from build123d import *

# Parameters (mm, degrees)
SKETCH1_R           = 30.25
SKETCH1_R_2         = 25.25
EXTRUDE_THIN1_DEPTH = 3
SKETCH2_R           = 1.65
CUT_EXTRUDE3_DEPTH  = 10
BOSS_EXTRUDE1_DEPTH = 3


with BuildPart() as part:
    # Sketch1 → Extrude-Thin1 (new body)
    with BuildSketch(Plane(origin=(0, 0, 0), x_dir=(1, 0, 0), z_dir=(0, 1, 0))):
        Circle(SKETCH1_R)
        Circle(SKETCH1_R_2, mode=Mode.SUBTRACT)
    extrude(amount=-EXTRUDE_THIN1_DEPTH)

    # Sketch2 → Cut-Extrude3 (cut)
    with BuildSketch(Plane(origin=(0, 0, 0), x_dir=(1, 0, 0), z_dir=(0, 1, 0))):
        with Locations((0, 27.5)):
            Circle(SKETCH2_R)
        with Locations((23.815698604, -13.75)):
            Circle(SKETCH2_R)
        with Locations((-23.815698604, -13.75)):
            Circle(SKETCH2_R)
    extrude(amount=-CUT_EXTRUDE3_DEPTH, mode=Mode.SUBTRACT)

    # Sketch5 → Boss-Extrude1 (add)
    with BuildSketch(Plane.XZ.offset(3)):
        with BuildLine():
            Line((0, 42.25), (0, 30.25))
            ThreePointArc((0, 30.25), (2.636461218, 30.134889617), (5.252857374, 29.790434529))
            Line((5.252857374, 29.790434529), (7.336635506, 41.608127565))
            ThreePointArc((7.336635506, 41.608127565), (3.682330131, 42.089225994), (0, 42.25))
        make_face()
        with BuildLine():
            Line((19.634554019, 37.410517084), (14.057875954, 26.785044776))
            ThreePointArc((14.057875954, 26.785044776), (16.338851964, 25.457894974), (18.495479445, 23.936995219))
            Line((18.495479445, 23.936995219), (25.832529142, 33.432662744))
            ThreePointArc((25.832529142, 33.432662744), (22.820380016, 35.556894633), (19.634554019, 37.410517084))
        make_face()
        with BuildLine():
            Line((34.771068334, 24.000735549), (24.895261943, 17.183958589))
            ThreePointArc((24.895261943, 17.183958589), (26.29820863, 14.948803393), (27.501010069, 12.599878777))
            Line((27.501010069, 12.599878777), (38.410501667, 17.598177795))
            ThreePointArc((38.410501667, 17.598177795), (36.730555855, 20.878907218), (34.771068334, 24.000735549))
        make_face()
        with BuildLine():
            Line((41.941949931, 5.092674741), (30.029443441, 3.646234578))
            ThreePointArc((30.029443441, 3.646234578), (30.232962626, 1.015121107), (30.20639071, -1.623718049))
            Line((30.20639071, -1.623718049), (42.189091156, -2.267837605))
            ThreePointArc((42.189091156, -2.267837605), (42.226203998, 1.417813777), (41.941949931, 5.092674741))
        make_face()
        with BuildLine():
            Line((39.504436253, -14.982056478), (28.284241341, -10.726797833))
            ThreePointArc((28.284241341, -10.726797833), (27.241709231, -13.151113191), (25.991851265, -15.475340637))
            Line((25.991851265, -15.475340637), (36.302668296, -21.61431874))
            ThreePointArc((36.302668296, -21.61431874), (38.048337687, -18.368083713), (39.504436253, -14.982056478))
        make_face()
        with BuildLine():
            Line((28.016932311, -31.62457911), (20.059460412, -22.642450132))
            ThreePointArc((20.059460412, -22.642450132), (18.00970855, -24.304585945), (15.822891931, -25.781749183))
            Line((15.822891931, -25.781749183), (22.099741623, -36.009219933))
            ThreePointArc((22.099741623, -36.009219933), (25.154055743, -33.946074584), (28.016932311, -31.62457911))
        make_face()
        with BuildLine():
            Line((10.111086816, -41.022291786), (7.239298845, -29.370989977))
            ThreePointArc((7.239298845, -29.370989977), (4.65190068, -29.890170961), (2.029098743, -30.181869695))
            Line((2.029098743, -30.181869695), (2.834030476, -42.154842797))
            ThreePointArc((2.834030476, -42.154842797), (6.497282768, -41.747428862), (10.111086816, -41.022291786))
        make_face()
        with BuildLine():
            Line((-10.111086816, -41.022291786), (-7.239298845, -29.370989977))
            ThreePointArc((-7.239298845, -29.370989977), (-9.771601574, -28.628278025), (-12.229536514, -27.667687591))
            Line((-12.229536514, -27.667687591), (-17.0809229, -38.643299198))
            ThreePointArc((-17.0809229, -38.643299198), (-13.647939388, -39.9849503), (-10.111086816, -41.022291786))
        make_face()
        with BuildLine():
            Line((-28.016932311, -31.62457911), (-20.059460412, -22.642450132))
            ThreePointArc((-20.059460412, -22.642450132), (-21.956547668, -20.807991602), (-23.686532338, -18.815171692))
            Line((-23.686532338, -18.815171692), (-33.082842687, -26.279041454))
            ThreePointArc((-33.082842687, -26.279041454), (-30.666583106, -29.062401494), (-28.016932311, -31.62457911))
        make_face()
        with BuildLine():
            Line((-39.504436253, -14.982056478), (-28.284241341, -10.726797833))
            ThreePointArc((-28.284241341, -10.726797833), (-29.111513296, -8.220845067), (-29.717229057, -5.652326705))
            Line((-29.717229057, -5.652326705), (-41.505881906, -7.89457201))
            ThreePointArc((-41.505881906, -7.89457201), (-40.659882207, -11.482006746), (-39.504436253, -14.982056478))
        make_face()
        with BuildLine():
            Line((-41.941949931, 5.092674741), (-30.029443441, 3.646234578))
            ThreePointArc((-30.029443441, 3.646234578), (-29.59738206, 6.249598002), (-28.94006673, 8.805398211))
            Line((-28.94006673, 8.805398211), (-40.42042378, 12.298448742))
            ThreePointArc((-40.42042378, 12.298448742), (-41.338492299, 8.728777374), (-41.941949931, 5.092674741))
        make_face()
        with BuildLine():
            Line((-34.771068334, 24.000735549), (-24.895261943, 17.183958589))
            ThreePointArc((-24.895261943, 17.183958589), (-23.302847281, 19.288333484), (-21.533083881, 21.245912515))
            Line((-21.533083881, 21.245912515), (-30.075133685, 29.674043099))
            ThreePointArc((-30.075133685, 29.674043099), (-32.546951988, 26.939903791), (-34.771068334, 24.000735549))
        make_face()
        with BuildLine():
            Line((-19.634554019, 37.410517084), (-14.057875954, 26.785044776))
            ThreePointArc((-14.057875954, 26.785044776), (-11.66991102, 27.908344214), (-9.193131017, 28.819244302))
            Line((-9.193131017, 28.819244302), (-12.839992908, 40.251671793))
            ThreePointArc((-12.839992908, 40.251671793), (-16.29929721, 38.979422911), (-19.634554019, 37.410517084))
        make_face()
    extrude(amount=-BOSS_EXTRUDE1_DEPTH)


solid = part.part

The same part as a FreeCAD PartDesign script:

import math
import FreeCAD as App
import Part
import Sketcher

V = App.Vector
Q = App.Units.Quantity

doc = App.newDocument("Part")
params = doc.addObject("Spreadsheet::Sheet", "Params")
for row, (alias, value) in enumerate([
    ("sketch1_diameter", "60.5 mm"),
    ("sketch1_diameter2", "50.5 mm"),
    ("pad1_length", "3 mm"),
    ("sketch2_diameter", "3.3 mm"),
    ("pocket1_length", "10 mm"),
    ("sketch3_height", "12 mm"),
    ("sketch3_radius", "30.25 mm"),
    ("pad2_length", "3 mm"),
], start=1):
    params.set(f"A{row}", alias)
    params.set(f"B{row}", "=" + value)
    params.setAlias(f"B{row}", alias)

body = doc.addObject("PartDesign::Body", "Body")

# Sketch on XZ plane
sketch1 = body.newObject("Sketcher::SketchObject", "Sketch")
sketch1.AttachmentSupport = (doc.getObject("XZ_Plane"), [""])
sketch1.MapMode = "FlatFace"
sketch1.addGeometry(Part.Circle(V(0, 0, 0), V(0, 0, 1), 30), False)
sketch1.addGeometry(Part.Circle(V(0, 0, 0), V(0, 0, 1), 25), False)
sketch1.addConstraint(Sketcher.Constraint("Coincident", 0, 3, -1, 1))
sketch1.addConstraint(Sketcher.Constraint("Coincident", 1, 3, -1, 1))
sketch1.addConstraint(Sketcher.Constraint("Diameter", 0, 60.5))
sketch1.addConstraint(Sketcher.Constraint("Diameter", 1, 50.5))
sketch1.setExpression("Constraints[2]", "Params.sketch1_diameter")
sketch1.setExpression("Constraints[3]", "Params.sketch1_diameter2")
pad1 = body.newObject("PartDesign::Pad", "Pad")
pad1.Profile = sketch1
pad1.setExpression("Length", "Params.pad1_length")

# Sketch on XZ plane
sketch2 = body.newObject("Sketcher::SketchObject", "Sketch001")
sketch2.AttachmentSupport = (doc.getObject("XZ_Plane"), [""])
sketch2.MapMode = "FlatFace"
sketch2.addGeometry(Part.Circle(V(0, -27.5, 0), V(0, 0, 1), 1.6), False)
sketch2.addGeometry(Part.Circle(V(23.8, 13.8, 0), V(0, 0, 1), 1.6), False)
sketch2.addGeometry(Part.Circle(V(-23.8, 13.8, 0), V(0, 0, 1), 1.6), False)
sketch2.addConstraint(Sketcher.Constraint("Equal", 0, 1))
sketch2.addConstraint(Sketcher.Constraint("Equal", 1, 2))
sketch2.addConstraint(Sketcher.Constraint("Symmetric", 1, 3, 2, 3, -2))
sketch2.addConstraint(Sketcher.Constraint("PointOnObject", 0, 3, -2))
sketch2.addConstraint(Sketcher.Constraint("Diameter", 0, 3.3))
sketch2.addConstraint(Sketcher.Constraint("DistanceY", 0, 3, -1, 1, 27.5))
sketch2.addConstraint(Sketcher.Constraint("DistanceY", -1, 1, 1, 3, 13.75))
sketch2.addConstraint(Sketcher.Constraint("DistanceX", -1, 1, 1, 3, 23.815699))
sketch2.setExpression("Constraints[4]", "Params.sketch2_diameter")
pocket1 = body.newObject("PartDesign::Pocket", "Pocket")
pocket1.Profile = sketch2
pocket1.setExpression("Length", "Params.pocket1_length")
pocket1.Reversed = True

# Sketch on XZ plane
sketch3 = body.newObject("Sketcher::SketchObject", "Sketch002")
sketch3.AttachmentSupport = (doc.getObject("XZ_Plane"), [""])
sketch3.MapMode = "FlatFace"
sketch3.AttachmentOffset = App.Placement(V(0, 0, 3), App.Rotation())
sketch3.addGeometry(Part.LineSegment(V(0, 42, 0), V(0, 30, 0)), False)
sketch3.addGeometry(Part.ArcOfCircle(Part.Circle(V(0, 0, 0), V(0, 0, 1), 30), math.radians(80), math.radians(90)), False)
sketch3.addGeometry(Part.LineSegment(V(5, 30, 0), V(7, 42, 0)), False)
sketch3.addGeometry(Part.ArcOfCircle(Part.Circle(V(0, 0, 0), V(0, 0, 1), 42), math.radians(80), math.radians(90)), False)
sketch3.addGeometry(Part.LineSegment(V(20, 37, 0), V(14, 27, 0)), False)
sketch3.addGeometry(Part.ArcOfCircle(Part.Circle(V(0, 0, 0), V(0, 0, 1), 30), math.radians(52.31), math.radians(62.31)), False)
sketch3.addGeometry(Part.LineSegment(V(18, 24, 0), V(26, 33, 0)), False)
sketch3.addGeometry(Part.ArcOfCircle(Part.Circle(V(0, 0, 0), V(0, 0, 1), 42), math.radians(52.31), math.radians(62.31)), False)
sketch3.addGeometry(Part.LineSegment(V(35, 24, 0), V(25, 17, 0)), False)
sketch3.addGeometry(Part.ArcOfCircle(Part.Circle(V(0, 0, 0), V(0, 0, 1), 30), math.radians(24.62), math.radians(34.62)), False)
sketch3.addGeometry(Part.LineSegment(V(28, 13, 0), V(38, 18, 0)), False)
sketch3.addGeometry(Part.ArcOfCircle(Part.Circle(V(0, 0, 0), V(0, 0, 1), 42), math.radians(24.62), math.radians(34.62)), False)
sketch3.addGeometry(Part.LineSegment(V(42, 5, 0), V(30, 4, 0)), False)
sketch3.addGeometry(Part.ArcOfCircle(Part.Circle(V(0, 0, 0), V(0, 0, 1), 30), math.radians(-3.08), math.radians(6.92)), False)
sketch3.addGeometry(Part.LineSegment(V(30, -2, 0), V(42, -2, 0)), False)
sketch3.addGeometry(Part.ArcOfCircle(Part.Circle(V(0, 0, 0), V(0, 0, 1), 42), math.radians(-3.08), math.radians(6.92)), False)
sketch3.addGeometry(Part.LineSegment(V(40, -15, 0), V(28, -11, 0)), False)
sketch3.addGeometry(Part.ArcOfCircle(Part.Circle(V(0, 0, 0), V(0, 0, 1), 30), math.radians(-30.77), math.radians(-20.77)), False)
sketch3.addGeometry(Part.LineSegment(V(26, -15, 0), V(36, -22, 0)), False)
sketch3.addGeometry(Part.ArcOfCircle(Part.Circle(V(0, 0, 0), V(0, 0, 1), 42), math.radians(-30.77), math.radians(-20.77)), False)
sketch3.addGeometry(Part.LineSegment(V(28, -32, 0), V(20, -23, 0)), False)
sketch3.addGeometry(Part.ArcOfCircle(Part.Circle(V(0, 0, 0), V(0, 0, 1), 30), math.radians(-58.46), math.radians(-48.46)), False)
sketch3.addGeometry(Part.LineSegment(V(16, -26, 0), V(22, -36, 0)), False)
sketch3.addGeometry(Part.ArcOfCircle(Part.Circle(V(0, 0, 0), V(0, 0, 1), 42), math.radians(-58.46), math.radians(-48.46)), False)
sketch3.addGeometry(Part.LineSegment(V(10, -41, 0), V(7, -29, 0)), False)
sketch3.addGeometry(Part.ArcOfCircle(Part.Circle(V(0, 0, 0), V(0, 0, 1), 30), math.radians(-86.15), math.radians(-76.15)), False)
sketch3.addGeometry(Part.LineSegment(V(2, -30, 0), V(3, -42, 0)), False)
sketch3.addGeometry(Part.ArcOfCircle(Part.Circle(V(0, 0, 0), V(0, 0, 1), 42), math.radians(-86.15), math.radians(-76.15)), False)
sketch3.addGeometry(Part.LineSegment(V(-10, -41, 0), V(-7, -29, 0)), False)
sketch3.addGeometry(Part.ArcOfCircle(Part.Circle(V(0, 0, 0), V(0, 0, 1), 30), math.radians(-113.85), math.radians(-103.85)), False)
sketch3.addGeometry(Part.LineSegment(V(-12, -28, 0), V(-17, -39, 0)), False)
sketch3.addGeometry(Part.ArcOfCircle(Part.Circle(V(0, 0, 0), V(0, 0, 1), 42), math.radians(-113.85), math.radians(-103.85)), False)
sketch3.addGeometry(Part.LineSegment(V(-28, -32, 0), V(-20, -23, 0)), False)
sketch3.addGeometry(Part.ArcOfCircle(Part.Circle(V(0, 0, 0), V(0, 0, 1), 30), math.radians(-141.54), math.radians(-131.54)), False)
sketch3.addGeometry(Part.LineSegment(V(-24, -19, 0), V(-33, -26, 0)), False)
sketch3.addGeometry(Part.ArcOfCircle(Part.Circle(V(0, 0, 0), V(0, 0, 1), 42), math.radians(-141.54), math.radians(-131.54)), False)
sketch3.addGeometry(Part.LineSegment(V(-40, -15, 0), V(-28, -11, 0)), False)
sketch3.addGeometry(Part.ArcOfCircle(Part.Circle(V(0, 0, 0), V(0, 0, 1), 30), math.radians(-169.23), math.radians(-159.23)), False)
sketch3.addGeometry(Part.LineSegment(V(-30, -6, 0), V(-42, -8, 0)), False)
sketch3.addGeometry(Part.ArcOfCircle(Part.Circle(V(0, 0, 0), V(0, 0, 1), 42), math.radians(-169.23), math.radians(-159.23)), False)
sketch3.addGeometry(Part.LineSegment(V(-42, 5, 0), V(-30, 4, 0)), False)
sketch3.addGeometry(Part.ArcOfCircle(Part.Circle(V(0, 0, 0), V(0, 0, 1), 30), math.radians(163.08), math.radians(173.08)), False)
sketch3.addGeometry(Part.LineSegment(V(-29, 9, 0), V(-40, 12, 0)), False)
sketch3.addGeometry(Part.ArcOfCircle(Part.Circle(V(0, 0, 0), V(0, 0, 1), 42), math.radians(163.08), math.radians(173.08)), False)
sketch3.addGeometry(Part.LineSegment(V(-35, 24, 0), V(-25, 17, 0)), False)
sketch3.addGeometry(Part.ArcOfCircle(Part.Circle(V(0, 0, 0), V(0, 0, 1), 30), math.radians(135.38), math.radians(145.38)), False)
sketch3.addGeometry(Part.LineSegment(V(-22, 21, 0), V(-30, 30, 0)), False)
sketch3.addGeometry(Part.ArcOfCircle(Part.Circle(V(0, 0, 0), V(0, 0, 1), 42), math.radians(135.38), math.radians(145.38)), False)
sketch3.addGeometry(Part.LineSegment(V(-20, 37, 0), V(-14, 27, 0)), False)
sketch3.addGeometry(Part.ArcOfCircle(Part.Circle(V(0, 0, 0), V(0, 0, 1), 30), math.radians(107.69), math.radians(117.69)), False)
sketch3.addGeometry(Part.LineSegment(V(-9, 29, 0), V(-13, 40, 0)), False)
sketch3.addGeometry(Part.ArcOfCircle(Part.Circle(V(0, 0, 0), V(0, 0, 1), 42), math.radians(107.69), math.radians(117.69)), False)
sketch3.addConstraint(Sketcher.Constraint("Coincident", 0, 2, 1, 2))
sketch3.addConstraint(Sketcher.Constraint("Coincident", 1, 1, 2, 1))
sketch3.addConstraint(Sketcher.Constraint("Coincident", 2, 2, 3, 1))
sketch3.addConstraint(Sketcher.Constraint("Coincident", 3, 2, 0, 1))
sketch3.addConstraint(Sketcher.Constraint("Coincident", 4, 2, 5, 2))
sketch3.addConstraint(Sketcher.Constraint("Coincident", 5, 1, 6, 1))
sketch3.addConstraint(Sketcher.Constraint("Coincident", 6, 2, 7, 1))
sketch3.addConstraint(Sketcher.Constraint("Coincident", 7, 2, 4, 1))
sketch3.addConstraint(Sketcher.Constraint("Coincident", 8, 2, 9, 2))
sketch3.addConstraint(Sketcher.Constraint("Coincident", 9, 1, 10, 1))
sketch3.addConstraint(Sketcher.Constraint("Coincident", 10, 2, 11, 1))
sketch3.addConstraint(Sketcher.Constraint("Coincident", 11, 2, 8, 1))
sketch3.addConstraint(Sketcher.Constraint("Coincident", 12, 2, 13, 2))
sketch3.addConstraint(Sketcher.Constraint("Coincident", 13, 1, 14, 1))
sketch3.addConstraint(Sketcher.Constraint("Coincident", 14, 2, 15, 1))
sketch3.addConstraint(Sketcher.Constraint("Coincident", 15, 2, 12, 1))
sketch3.addConstraint(Sketcher.Constraint("Coincident", 16, 2, 17, 2))
sketch3.addConstraint(Sketcher.Constraint("Coincident", 17, 1, 18, 1))
sketch3.addConstraint(Sketcher.Constraint("Coincident", 18, 2, 19, 1))
sketch3.addConstraint(Sketcher.Constraint("Coincident", 19, 2, 16, 1))
sketch3.addConstraint(Sketcher.Constraint("Coincident", 20, 2, 21, 2))
sketch3.addConstraint(Sketcher.Constraint("Coincident", 21, 1, 22, 1))
sketch3.addConstraint(Sketcher.Constraint("Coincident", 22, 2, 23, 1))
sketch3.addConstraint(Sketcher.Constraint("Coincident", 23, 2, 20, 1))
sketch3.addConstraint(Sketcher.Constraint("Coincident", 24, 2, 25, 2))
sketch3.addConstraint(Sketcher.Constraint("Coincident", 25, 1, 26, 1))
sketch3.addConstraint(Sketcher.Constraint("Coincident", 26, 2, 27, 1))
sketch3.addConstraint(Sketcher.Constraint("Coincident", 27, 2, 24, 1))
sketch3.addConstraint(Sketcher.Constraint("Coincident", 28, 2, 29, 2))
sketch3.addConstraint(Sketcher.Constraint("Coincident", 29, 1, 30, 1))
sketch3.addConstraint(Sketcher.Constraint("Coincident", 30, 2, 31, 1))
sketch3.addConstraint(Sketcher.Constraint("Coincident", 31, 2, 28, 1))
sketch3.addConstraint(Sketcher.Constraint("Coincident", 32, 2, 33, 2))
sketch3.addConstraint(Sketcher.Constraint("Coincident", 33, 1, 34, 1))
sketch3.addConstraint(Sketcher.Constraint("Coincident", 34, 2, 35, 1))
sketch3.addConstraint(Sketcher.Constraint("Coincident", 35, 2, 32, 1))
sketch3.addConstraint(Sketcher.Constraint("Coincident", 36, 2, 37, 2))
sketch3.addConstraint(Sketcher.Constraint("Coincident", 37, 1, 38, 1))
sketch3.addConstraint(Sketcher.Constraint("Coincident", 38, 2, 39, 1))
sketch3.addConstraint(Sketcher.Constraint("Coincident", 39, 2, 36, 1))
sketch3.addConstraint(Sketcher.Constraint("Coincident", 40, 2, 41, 2))
sketch3.addConstraint(Sketcher.Constraint("Coincident", 41, 1, 42, 1))
sketch3.addConstraint(Sketcher.Constraint("Coincident", 42, 2, 43, 1))
sketch3.addConstraint(Sketcher.Constraint("Coincident", 43, 2, 40, 1))
sketch3.addConstraint(Sketcher.Constraint("Coincident", 44, 2, 45, 2))
sketch3.addConstraint(Sketcher.Constraint("Coincident", 45, 1, 46, 1))
sketch3.addConstraint(Sketcher.Constraint("Coincident", 46, 2, 47, 1))
sketch3.addConstraint(Sketcher.Constraint("Coincident", 47, 2, 44, 1))
sketch3.addConstraint(Sketcher.Constraint("Coincident", 48, 2, 49, 2))
sketch3.addConstraint(Sketcher.Constraint("Coincident", 49, 1, 50, 1))
sketch3.addConstraint(Sketcher.Constraint("Coincident", 50, 2, 51, 1))
sketch3.addConstraint(Sketcher.Constraint("Coincident", 51, 2, 48, 1))
sketch3.addConstraint(Sketcher.Constraint("Vertical", 0))
sketch3.addConstraint(Sketcher.Constraint("Coincident", 1, 3, -1, 1))
sketch3.addConstraint(Sketcher.Constraint("Coincident", 3, 3, -1, 1))
sketch3.addConstraint(Sketcher.Constraint("Coincident", 5, 3, -1, 1))
sketch3.addConstraint(Sketcher.Constraint("Coincident", 7, 3, -1, 1))
sketch3.addConstraint(Sketcher.Constraint("Coincident", 9, 3, -1, 1))
sketch3.addConstraint(Sketcher.Constraint("Coincident", 11, 3, -1, 1))
sketch3.addConstraint(Sketcher.Constraint("Coincident", 13, 3, -1, 1))
sketch3.addConstraint(Sketcher.Constraint("Coincident", 15, 3, -1, 1))
sketch3.addConstraint(Sketcher.Constraint("Coincident", 17, 3, -1, 1))
sketch3.addConstraint(Sketcher.Constraint("Coincident", 19, 3, -1, 1))
sketch3.addConstraint(Sketcher.Constraint("Coincident", 21, 3, -1, 1))
sketch3.addConstraint(Sketcher.Constraint("Coincident", 23, 3, -1, 1))
sketch3.addConstraint(Sketcher.Constraint("Coincident", 25, 3, -1, 1))
sketch3.addConstraint(Sketcher.Constraint("Coincident", 27, 3, -1, 1))
sketch3.addConstraint(Sketcher.Constraint("Coincident", 29, 3, -1, 1))
sketch3.addConstraint(Sketcher.Constraint("Coincident", 31, 3, -1, 1))
sketch3.addConstraint(Sketcher.Constraint("Coincident", 33, 3, -1, 1))
sketch3.addConstraint(Sketcher.Constraint("Coincident", 35, 3, -1, 1))
sketch3.addConstraint(Sketcher.Constraint("Coincident", 37, 3, -1, 1))
sketch3.addConstraint(Sketcher.Constraint("Coincident", 39, 3, -1, 1))
sketch3.addConstraint(Sketcher.Constraint("Coincident", 41, 3, -1, 1))
sketch3.addConstraint(Sketcher.Constraint("Coincident", 43, 3, -1, 1))
sketch3.addConstraint(Sketcher.Constraint("Coincident", 45, 3, -1, 1))
sketch3.addConstraint(Sketcher.Constraint("Coincident", 47, 3, -1, 1))
sketch3.addConstraint(Sketcher.Constraint("Coincident", 49, 3, -1, 1))
sketch3.addConstraint(Sketcher.Constraint("Coincident", 51, 3, -1, 1))
sketch3.addConstraint(Sketcher.Constraint("Equal", 1, 5))
sketch3.addConstraint(Sketcher.Constraint("Equal", 3, 7))
sketch3.addConstraint(Sketcher.Constraint("Equal", 5, 9))
sketch3.addConstraint(Sketcher.Constraint("Equal", 7, 11))
sketch3.addConstraint(Sketcher.Constraint("Equal", 9, 13))
sketch3.addConstraint(Sketcher.Constraint("Equal", 11, 15))
sketch3.addConstraint(Sketcher.Constraint("Equal", 13, 17))
sketch3.addConstraint(Sketcher.Constraint("Equal", 15, 19))
sketch3.addConstraint(Sketcher.Constraint("Equal", 17, 21))
sketch3.addConstraint(Sketcher.Constraint("Equal", 19, 23))
sketch3.addConstraint(Sketcher.Constraint("Equal", 21, 25))
sketch3.addConstraint(Sketcher.Constraint("Equal", 23, 27))
sketch3.addConstraint(Sketcher.Constraint("Equal", 25, 29))
sketch3.addConstraint(Sketcher.Constraint("Equal", 27, 31))
sketch3.addConstraint(Sketcher.Constraint("Equal", 29, 33))
sketch3.addConstraint(Sketcher.Constraint("Equal", 31, 35))
sketch3.addConstraint(Sketcher.Constraint("Equal", 33, 37))
sketch3.addConstraint(Sketcher.Constraint("Equal", 35, 39))
sketch3.addConstraint(Sketcher.Constraint("Equal", 37, 41))
sketch3.addConstraint(Sketcher.Constraint("Equal", 39, 43))
sketch3.addConstraint(Sketcher.Constraint("Equal", 41, 45))
sketch3.addConstraint(Sketcher.Constraint("Equal", 43, 47))
sketch3.addConstraint(Sketcher.Constraint("Equal", 45, 49))
sketch3.addConstraint(Sketcher.Constraint("Equal", 47, 51))
sketch3.addConstraint(Sketcher.Constraint("PointOnObject", 0, 2, -2))
sketch3.addConstraint(Sketcher.Constraint("Horizontal", 24, 2, 28, 2))
sketch3.addConstraint(Sketcher.Constraint("Horizontal", 27, 2, 31, 2))
sketch3.addConstraint(Sketcher.Constraint("Horizontal", 20, 2, 32, 2))
sketch3.addConstraint(Sketcher.Constraint("Horizontal", 23, 2, 35, 2))
sketch3.addConstraint(Sketcher.Constraint("Horizontal", 16, 2, 36, 2))
sketch3.addConstraint(Sketcher.Constraint("Horizontal", 19, 2, 39, 2))
sketch3.addConstraint(Sketcher.Constraint("Horizontal", 12, 2, 40, 2))
sketch3.addConstraint(Sketcher.Constraint("Horizontal", 15, 2, 43, 2))
sketch3.addConstraint(Sketcher.Constraint("Horizontal", 8, 2, 44, 2))
sketch3.addConstraint(Sketcher.Constraint("Horizontal", 11, 2, 47, 2))
sketch3.addConstraint(Sketcher.Constraint("Horizontal", 4, 2, 48, 2))
sketch3.addConstraint(Sketcher.Constraint("Horizontal", 7, 2, 51, 2))
sketch3.addConstraint(Sketcher.Constraint("DistanceY", 0, 2, 0, 1, 12.0))
sketch3.addConstraint(Sketcher.Constraint("Angle", 2, Q("80 deg")))
sketch3.addConstraint(Sketcher.Constraint("Radius", 1, 30.25))
sketch3.addConstraint(Sketcher.Constraint("DistanceX", -1, 1, 10, 2, 38.410502))
sketch3.addConstraint(Sketcher.Constraint("DistanceX", -1, 1, 24, 2, 7.239299))
sketch3.addConstraint(Sketcher.Constraint("DistanceX", -1, 1, 25, 1, 2.029099))
sketch3.addConstraint(Sketcher.Constraint("DistanceY", 30, 2, -1, 1, 38.643299))
sketch3.addConstraint(Sketcher.Constraint("DistanceY", -1, 1, 41, 1, 8.805398))
sketch3.addConstraint(Sketcher.Constraint("DistanceX", -1, 1, 5, 1, 18.495479))
sketch3.addConstraint(Sketcher.Constraint("DistanceX", -1, 1, 6, 2, 25.832529))
sketch3.addConstraint(Sketcher.Constraint("DistanceX", -1, 1, 8, 2, 24.895262))
sketch3.addConstraint(Sketcher.Constraint("DistanceX", -1, 1, 9, 1, 27.50101))
sketch3.addConstraint(Sketcher.Constraint("DistanceX", -1, 1, 11, 2, 34.771068))
sketch3.addConstraint(Sketcher.Constraint("DistanceX", -1, 1, 13, 1, 30.206391))
sketch3.addConstraint(Sketcher.Constraint("DistanceX", -1, 1, 14, 2, 42.189091))
sketch3.addConstraint(Sketcher.Constraint("DistanceX", -1, 1, 15, 2, 41.94195))
sketch3.addConstraint(Sketcher.Constraint("DistanceX", -1, 1, 16, 2, 28.284241))
sketch3.addConstraint(Sketcher.Constraint("DistanceX", -1, 1, 17, 1, 25.991851))
sketch3.addConstraint(Sketcher.Constraint("DistanceX", -1, 1, 18, 2, 36.302668))
sketch3.addConstraint(Sketcher.Constraint("DistanceX", -1, 1, 20, 2, 20.05946))
sketch3.addConstraint(Sketcher.Constraint("DistanceX", -1, 1, 21, 1, 15.822892))
sketch3.addConstraint(Sketcher.Constraint("DistanceX", -1, 1, 22, 2, 22.099742))
sketch3.addConstraint(Sketcher.Constraint("DistanceY", 23, 2, -1, 1, 31.624579))
sketch3.addConstraint(Sketcher.Constraint("DistanceX", -1, 1, 26, 2, 2.83403))
sketch3.addConstraint(Sketcher.Constraint("DistanceY", 27, 2, -1, 1, 41.022292))
sketch3.addConstraint(Sketcher.Constraint("DistanceY", 33, 1, -1, 1, 18.815172))
sketch3.addConstraint(Sketcher.Constraint("DistanceY", 34, 2, -1, 1, 26.279041))
sketch3.addConstraint(Sketcher.Constraint("DistanceX", 37, 1, -1, 1, 29.717229))
sketch3.addConstraint(Sketcher.Constraint("DistanceX", 38, 2, -1, 1, 41.505882))
sketch3.addConstraint(Sketcher.Constraint("DistanceY", -1, 1, 42, 2, 12.298449))
sketch3.addConstraint(Sketcher.Constraint("DistanceX", 49, 1, -1, 1, 9.193131))
sketch3.addConstraint(Sketcher.Constraint("DistanceY", -1, 1, 50, 2, 40.251672))
sketch3.addConstraint(Sketcher.Constraint("DistanceX", -1, 1, 1, 1, 5.252857))
sketch3.addConstraint(Sketcher.Constraint("DistanceX", -1, 1, 4, 2, 14.057876))
sketch3.addConstraint(Sketcher.Constraint("DistanceX", -1, 1, 7, 2, 19.634554))
sketch3.addConstraint(Sketcher.Constraint("DistanceX", -1, 1, 12, 2, 30.029443))
sketch3.addConstraint(Sketcher.Constraint("DistanceX", -1, 1, 19, 2, 39.504436))
sketch3.addConstraint(Sketcher.Constraint("DistanceX", 29, 1, -1, 1, 12.229537))
sketch3.addConstraint(Sketcher.Constraint("DistanceX", 45, 1, -1, 1, 21.533084))
sketch3.addConstraint(Sketcher.Constraint("DistanceX", 46, 2, -1, 1, 30.075134))
sketch3.setExpression("Constraints[116]", "Params.sketch3_height")
sketch3.setExpression("Constraints[118]", "Params.sketch3_radius")
pad2 = body.newObject("PartDesign::Pad", "Pad001")
pad2.Profile = sketch3
pad2.setExpression("Length", "Params.pad2_length")
pad2.Reversed = True

doc.recompute()
